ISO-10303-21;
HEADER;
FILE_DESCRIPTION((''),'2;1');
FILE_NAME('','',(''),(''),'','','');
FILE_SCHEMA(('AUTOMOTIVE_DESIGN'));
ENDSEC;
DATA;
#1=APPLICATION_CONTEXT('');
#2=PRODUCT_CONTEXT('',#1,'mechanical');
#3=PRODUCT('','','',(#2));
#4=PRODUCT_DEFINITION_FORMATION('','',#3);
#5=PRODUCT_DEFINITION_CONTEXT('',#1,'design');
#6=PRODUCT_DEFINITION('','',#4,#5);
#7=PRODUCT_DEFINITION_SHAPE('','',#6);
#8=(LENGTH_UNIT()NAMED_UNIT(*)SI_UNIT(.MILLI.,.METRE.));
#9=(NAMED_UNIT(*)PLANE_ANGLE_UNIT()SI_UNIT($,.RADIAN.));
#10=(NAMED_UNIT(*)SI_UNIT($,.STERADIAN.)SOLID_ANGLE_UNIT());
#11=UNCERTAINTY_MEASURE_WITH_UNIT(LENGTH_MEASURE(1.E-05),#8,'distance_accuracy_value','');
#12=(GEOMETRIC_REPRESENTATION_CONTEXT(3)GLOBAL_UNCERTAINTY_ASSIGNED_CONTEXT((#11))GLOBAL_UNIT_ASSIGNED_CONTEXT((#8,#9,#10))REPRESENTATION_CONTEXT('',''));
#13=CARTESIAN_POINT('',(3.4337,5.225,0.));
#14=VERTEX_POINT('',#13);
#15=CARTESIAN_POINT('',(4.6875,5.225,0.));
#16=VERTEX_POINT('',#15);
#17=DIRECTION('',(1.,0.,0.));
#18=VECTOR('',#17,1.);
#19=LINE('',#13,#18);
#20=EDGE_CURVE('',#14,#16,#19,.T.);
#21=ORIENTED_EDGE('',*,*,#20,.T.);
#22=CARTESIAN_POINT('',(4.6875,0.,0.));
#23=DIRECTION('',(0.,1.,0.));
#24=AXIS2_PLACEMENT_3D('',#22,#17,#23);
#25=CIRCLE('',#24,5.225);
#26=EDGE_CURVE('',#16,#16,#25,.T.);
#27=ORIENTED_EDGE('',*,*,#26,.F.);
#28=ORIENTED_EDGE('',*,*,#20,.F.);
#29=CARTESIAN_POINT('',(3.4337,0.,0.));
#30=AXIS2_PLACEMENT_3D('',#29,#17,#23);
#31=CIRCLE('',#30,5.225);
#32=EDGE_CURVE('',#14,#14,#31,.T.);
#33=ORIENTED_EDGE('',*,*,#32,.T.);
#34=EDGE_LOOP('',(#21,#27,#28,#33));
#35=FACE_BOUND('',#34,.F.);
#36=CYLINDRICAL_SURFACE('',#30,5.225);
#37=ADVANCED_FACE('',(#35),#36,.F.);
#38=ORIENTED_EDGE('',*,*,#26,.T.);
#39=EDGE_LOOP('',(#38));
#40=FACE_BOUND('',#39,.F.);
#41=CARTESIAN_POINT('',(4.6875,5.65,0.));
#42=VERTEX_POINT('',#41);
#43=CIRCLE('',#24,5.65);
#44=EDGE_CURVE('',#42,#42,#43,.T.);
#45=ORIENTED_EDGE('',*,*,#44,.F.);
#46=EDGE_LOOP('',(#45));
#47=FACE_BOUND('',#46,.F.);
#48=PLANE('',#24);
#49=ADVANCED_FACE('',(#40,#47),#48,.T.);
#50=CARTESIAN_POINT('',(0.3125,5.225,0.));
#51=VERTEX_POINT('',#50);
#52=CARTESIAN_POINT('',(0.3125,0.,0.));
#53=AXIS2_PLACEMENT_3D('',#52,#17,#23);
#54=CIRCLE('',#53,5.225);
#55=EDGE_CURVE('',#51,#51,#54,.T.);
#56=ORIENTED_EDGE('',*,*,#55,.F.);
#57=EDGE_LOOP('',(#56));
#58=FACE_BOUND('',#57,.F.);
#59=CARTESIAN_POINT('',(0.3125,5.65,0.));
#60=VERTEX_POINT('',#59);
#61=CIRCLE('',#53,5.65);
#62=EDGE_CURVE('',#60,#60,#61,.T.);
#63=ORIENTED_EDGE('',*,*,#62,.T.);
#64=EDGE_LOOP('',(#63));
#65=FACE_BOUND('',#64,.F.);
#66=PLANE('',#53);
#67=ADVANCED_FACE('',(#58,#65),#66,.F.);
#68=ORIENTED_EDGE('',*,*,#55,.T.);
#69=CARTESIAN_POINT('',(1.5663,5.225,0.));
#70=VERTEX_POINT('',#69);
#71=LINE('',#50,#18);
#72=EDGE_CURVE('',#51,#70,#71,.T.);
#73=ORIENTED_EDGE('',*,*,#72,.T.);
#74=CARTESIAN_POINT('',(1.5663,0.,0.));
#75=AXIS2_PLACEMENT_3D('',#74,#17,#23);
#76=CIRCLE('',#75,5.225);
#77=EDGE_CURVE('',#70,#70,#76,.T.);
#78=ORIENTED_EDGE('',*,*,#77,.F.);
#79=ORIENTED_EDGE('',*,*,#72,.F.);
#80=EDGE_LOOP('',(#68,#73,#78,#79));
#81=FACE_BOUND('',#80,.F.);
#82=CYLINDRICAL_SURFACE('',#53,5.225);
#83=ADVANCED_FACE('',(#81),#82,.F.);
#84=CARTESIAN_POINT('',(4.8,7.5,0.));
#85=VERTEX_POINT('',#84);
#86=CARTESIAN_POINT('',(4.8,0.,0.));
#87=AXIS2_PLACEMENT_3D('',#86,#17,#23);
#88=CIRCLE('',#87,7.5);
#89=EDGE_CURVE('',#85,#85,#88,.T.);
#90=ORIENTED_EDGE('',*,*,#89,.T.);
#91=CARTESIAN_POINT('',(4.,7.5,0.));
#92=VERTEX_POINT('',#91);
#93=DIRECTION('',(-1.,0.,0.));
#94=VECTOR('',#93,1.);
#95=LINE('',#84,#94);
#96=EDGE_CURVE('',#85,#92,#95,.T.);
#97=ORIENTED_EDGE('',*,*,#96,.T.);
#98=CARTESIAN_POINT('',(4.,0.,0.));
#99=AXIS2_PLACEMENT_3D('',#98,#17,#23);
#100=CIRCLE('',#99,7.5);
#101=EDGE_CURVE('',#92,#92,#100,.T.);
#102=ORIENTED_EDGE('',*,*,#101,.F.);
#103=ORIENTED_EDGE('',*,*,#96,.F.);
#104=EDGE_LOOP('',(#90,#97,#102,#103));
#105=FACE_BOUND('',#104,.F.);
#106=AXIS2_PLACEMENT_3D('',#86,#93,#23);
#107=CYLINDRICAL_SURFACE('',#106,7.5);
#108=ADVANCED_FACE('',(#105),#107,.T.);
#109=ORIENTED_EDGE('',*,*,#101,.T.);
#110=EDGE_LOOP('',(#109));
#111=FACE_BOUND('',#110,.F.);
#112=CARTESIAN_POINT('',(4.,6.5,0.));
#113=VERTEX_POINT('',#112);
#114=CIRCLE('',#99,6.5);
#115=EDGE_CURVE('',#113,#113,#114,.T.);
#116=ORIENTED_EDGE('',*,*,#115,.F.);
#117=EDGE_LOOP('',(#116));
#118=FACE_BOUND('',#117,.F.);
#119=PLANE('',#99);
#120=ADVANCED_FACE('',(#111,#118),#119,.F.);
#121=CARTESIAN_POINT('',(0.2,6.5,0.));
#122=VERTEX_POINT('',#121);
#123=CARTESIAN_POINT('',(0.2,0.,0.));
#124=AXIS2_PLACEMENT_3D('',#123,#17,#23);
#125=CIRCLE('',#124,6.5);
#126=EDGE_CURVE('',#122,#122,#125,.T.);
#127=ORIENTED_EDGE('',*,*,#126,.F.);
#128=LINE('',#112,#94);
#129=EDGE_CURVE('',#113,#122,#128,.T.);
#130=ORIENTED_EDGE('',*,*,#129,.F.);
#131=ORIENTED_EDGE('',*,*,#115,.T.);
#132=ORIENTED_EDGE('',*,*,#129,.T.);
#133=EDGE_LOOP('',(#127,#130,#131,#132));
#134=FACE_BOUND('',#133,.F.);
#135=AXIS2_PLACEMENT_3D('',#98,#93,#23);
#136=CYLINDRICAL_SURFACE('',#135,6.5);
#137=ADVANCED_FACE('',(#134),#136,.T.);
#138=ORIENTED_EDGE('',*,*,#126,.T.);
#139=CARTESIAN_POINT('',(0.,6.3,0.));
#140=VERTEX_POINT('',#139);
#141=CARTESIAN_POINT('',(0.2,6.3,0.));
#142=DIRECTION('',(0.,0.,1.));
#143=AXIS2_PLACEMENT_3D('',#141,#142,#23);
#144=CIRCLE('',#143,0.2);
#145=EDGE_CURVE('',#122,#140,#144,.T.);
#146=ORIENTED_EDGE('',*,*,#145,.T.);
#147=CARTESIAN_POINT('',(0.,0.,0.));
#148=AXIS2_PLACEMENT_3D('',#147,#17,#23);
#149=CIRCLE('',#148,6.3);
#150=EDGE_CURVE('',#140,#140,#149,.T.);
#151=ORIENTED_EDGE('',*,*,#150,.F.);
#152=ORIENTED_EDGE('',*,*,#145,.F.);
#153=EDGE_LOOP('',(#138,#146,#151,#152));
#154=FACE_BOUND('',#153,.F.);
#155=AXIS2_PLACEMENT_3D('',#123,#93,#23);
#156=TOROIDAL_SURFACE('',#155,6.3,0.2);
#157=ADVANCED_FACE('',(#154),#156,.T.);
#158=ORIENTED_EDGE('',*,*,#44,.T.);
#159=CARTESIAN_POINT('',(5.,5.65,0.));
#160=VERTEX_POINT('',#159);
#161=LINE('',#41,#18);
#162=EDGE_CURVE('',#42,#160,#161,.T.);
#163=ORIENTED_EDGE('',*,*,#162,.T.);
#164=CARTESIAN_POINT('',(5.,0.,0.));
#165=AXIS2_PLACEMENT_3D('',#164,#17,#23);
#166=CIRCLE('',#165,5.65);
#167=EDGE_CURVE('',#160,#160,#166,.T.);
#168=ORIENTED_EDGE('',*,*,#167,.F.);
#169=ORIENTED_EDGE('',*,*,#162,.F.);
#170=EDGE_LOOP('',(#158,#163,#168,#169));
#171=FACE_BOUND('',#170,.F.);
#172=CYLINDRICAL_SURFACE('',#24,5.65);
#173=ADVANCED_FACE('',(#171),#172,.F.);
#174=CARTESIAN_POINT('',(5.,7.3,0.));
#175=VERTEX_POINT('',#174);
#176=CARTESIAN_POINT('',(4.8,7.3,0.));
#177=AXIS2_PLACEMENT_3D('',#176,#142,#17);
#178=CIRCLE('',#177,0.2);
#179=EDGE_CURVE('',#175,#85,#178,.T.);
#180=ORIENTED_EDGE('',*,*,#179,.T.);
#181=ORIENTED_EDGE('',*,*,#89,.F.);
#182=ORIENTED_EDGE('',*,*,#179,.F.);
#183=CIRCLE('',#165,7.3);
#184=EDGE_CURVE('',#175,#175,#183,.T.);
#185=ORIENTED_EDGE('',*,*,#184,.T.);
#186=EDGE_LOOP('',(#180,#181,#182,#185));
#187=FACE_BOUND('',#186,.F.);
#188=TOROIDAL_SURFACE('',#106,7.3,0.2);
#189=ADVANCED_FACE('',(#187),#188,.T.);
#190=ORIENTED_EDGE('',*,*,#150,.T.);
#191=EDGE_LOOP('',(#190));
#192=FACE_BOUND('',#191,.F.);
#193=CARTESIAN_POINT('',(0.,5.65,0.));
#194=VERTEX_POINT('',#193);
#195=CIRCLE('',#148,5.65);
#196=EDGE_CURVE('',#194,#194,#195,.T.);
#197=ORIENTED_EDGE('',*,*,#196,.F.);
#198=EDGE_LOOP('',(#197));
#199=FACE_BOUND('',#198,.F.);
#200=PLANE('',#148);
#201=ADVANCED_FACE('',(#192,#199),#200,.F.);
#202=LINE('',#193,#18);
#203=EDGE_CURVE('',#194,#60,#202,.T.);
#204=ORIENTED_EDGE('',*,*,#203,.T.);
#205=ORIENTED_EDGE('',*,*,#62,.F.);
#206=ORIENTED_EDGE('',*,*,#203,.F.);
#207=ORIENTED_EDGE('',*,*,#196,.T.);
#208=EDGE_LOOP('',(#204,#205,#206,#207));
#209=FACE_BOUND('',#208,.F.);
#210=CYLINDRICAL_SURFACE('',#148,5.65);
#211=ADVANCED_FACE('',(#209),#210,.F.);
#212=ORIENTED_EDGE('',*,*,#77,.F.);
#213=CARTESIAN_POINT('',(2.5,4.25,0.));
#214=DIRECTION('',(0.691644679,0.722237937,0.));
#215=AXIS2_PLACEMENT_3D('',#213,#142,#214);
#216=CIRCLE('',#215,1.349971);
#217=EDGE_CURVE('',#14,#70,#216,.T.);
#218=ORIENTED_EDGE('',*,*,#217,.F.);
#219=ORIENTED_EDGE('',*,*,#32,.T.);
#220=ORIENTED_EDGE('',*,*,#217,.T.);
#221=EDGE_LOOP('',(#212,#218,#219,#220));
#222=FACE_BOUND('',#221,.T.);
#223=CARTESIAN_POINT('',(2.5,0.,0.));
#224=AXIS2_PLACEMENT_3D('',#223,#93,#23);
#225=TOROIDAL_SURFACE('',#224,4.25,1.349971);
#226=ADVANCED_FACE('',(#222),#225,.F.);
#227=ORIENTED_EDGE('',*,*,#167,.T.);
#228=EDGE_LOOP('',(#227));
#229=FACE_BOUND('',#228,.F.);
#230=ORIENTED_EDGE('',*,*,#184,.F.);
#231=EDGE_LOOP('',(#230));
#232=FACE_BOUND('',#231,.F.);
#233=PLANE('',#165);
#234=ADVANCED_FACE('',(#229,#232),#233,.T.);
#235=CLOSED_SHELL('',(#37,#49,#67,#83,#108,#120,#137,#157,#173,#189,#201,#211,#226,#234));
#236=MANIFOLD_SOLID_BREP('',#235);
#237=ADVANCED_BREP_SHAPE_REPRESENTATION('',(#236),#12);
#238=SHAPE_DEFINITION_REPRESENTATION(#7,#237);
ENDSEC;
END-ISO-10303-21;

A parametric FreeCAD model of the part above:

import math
import FreeCAD as App
import Part
import Sketcher

V = App.Vector
Q = App.Units.Quantity

doc = App.newDocument("Part")
body = doc.addObject("PartDesign::Body", "Body")

sketch1 = body.newObject("Sketcher::SketchObject", "Sketch")
sketch1.AttachmentSupport = (doc.getObject("XY_Plane"), [""])
sketch1.MapMode = "FlatFace"
sketch1.addGeometry(Part.LineSegment(V(0, 6.3, 0), V(0, 5.65, 0)), False)
sketch1.addGeometry(Part.LineSegment(V(0, 5.65, 0), V(0.31, 5.65, 0)), False)
sketch1.addGeometry(Part.LineSegment(V(0.31, 5.65, 0), V(0.31, 5.22, 0)), False)
sketch1.addGeometry(Part.LineSegment(V(0.31, 5.22, 0), V(1.57, 5.22, 0)), False)
sketch1.addGeometry(Part.ArcOfCircle(Part.Circle(V(2.5, 4.25, 0), V(0, 0, 1), 1.35), math.radians(46), math.radians(134)), False)
sketch1.addGeometry(Part.LineSegment(V(3.43, 5.22, 0), V(4.69, 5.22, 0)), False)
sketch1.addGeometry(Part.LineSegment(V(4.69, 5.22, 0), V(4.69, 5.65, 0)), False)
sketch1.addGeometry(Part.LineSegment(V(4.69, 5.65, 0), V(5, 5.65, 0)), False)
sketch1.addGeometry(Part.LineSegment(V(5, 5.65, 0), V(5, 7.3, 0)), False)
sketch1.addGeometry(Part.ArcOfCircle(Part.Circle(V(4.8, 7.3, 0), V(0, 0, 1), 0.2), math.radians(0), math.radians(90)), False)
sketch1.addGeometry(Part.LineSegment(V(4.8, 7.5, 0), V(4, 7.5, 0)), False)
sketch1.addGeometry(Part.LineSegment(V(4, 7.5, 0), V(4, 6.5, 0)), False)
sketch1.addGeometry(Part.LineSegment(V(4, 6.5, 0), V(0.2, 6.5, 0)), False)
sketch1.addGeometry(Part.ArcOfCircle(Part.Circle(V(0.2, 6.3, 0), V(0, 0, 1), 0.2), math.radians(90), math.radians(180)), False)
sketch1.addConstraint(Sketcher.Constraint("Coincident", 0, 2, 1, 1))
sketch1.addConstraint(Sketcher.Constraint("Coincident", 1, 2, 2, 1))
sketch1.addConstraint(Sketcher.Constraint("Coincident", 2, 2, 3, 1))
sketch1.addConstraint(Sketcher.Constraint("Coincident", 3, 2, 4, 2))
sketch1.addConstraint(Sketcher.Constraint("Coincident", 4, 1, 5, 1))
sketch1.addConstraint(Sketcher.Constraint("Coincident", 5, 2, 6, 1))
sketch1.addConstraint(Sketcher.Constraint("Coincident", 6, 2, 7, 1))
sketch1.addConstraint(Sketcher.Constraint("Coincident", 7, 2, 8, 1))
sketch1.addConstraint(Sketcher.Constraint("Tangent", 8, 2, 9, 1))
sketch1.addConstraint(Sketcher.Constraint("Tangent", 9, 2, 10, 1))
sketch1.addConstraint(Sketcher.Constraint("Coincident", 10, 2, 11, 1))
sketch1.addConstraint(Sketcher.Constraint("Coincident", 11, 2, 12, 1))
sketch1.addConstraint(Sketcher.Constraint("Tangent", 12, 2, 13, 1))
sketch1.addConstraint(Sketcher.Constraint("Tangent", 13, 2, 0, 1))
sketch1.addConstraint(Sketcher.Constraint("Vertical", 0))
sketch1.addConstraint(Sketcher.Constraint("Horizontal", 1))
sketch1.addConstraint(Sketcher.Constraint("Vertical", 2))
sketch1.addConstraint(Sketcher.Constraint("Horizontal", 3))
sketch1.addConstraint(Sketcher.Constraint("Horizontal", 5))
sketch1.addConstraint(Sketcher.Constraint("Vertical", 6))
sketch1.addConstraint(Sketcher.Constraint("Horizontal", 7))
sketch1.addConstraint(Sketcher.Constraint("Vertical", 8))
sketch1.addConstraint(Sketcher.Constraint("Horizontal", 10))
sketch1.addConstraint(Sketcher.Constraint("Vertical", 11))
sketch1.addConstraint(Sketcher.Constraint("Horizontal", 12))
sketch1.addConstraint(Sketcher.Constraint("Equal", 9, 13))
sketch1.addConstraint(Sketcher.Constraint("PointOnObject", 0, 2, -2))
sketch1.addConstraint(Sketcher.Constraint("Horizontal", 3, 2, 4, 1))
sketch1.addConstraint(Sketcher.Constraint("Horizontal", 1, 2, 6, 2))
sketch1.addConstraint(Sketcher.Constraint("Equal", 3, 5))
sketch1.addConstraint(Sketcher.Constraint("Equal", 1, 7))
sketch1.addConstraint(Sketcher.Constraint("Radius", 9, Q("0.2 mm")))
sketch1.addConstraint(Sketcher.Constraint("DistanceY", 11, 2, 11, 1, Q("1 mm")))
sketch1.addConstraint(Sketcher.Constraint("Radius", 4, Q("1.35 mm")))
sketch1.addConstraint(Sketcher.Constraint("DistanceX", 10, 2, 10, 1, Q("0.8 mm")))
sketch1.addConstraint(Sketcher.Constraint("DistanceX", 12, 2, 12, 1, Q("3.8 mm")))
sketch1.addConstraint(Sketcher.Constraint("DistanceY", 0, 2, 0, 1, Q("0.65 mm")))
sketch1.addConstraint(Sketcher.Constraint("DistanceY", -1, 1, 9, 3, Q("7.3 mm")))
sketch1.addConstraint(Sketcher.Constraint("DistanceY", 4, 3, 0, 2, Q("1.4 mm")))
sketch1.addConstraint(Sketcher.Constraint("DistanceY", 2, 2, 2, 1, Q("0.425 mm")))
sketch1.addConstraint(Sketcher.Constraint("DistanceX", 1, 1, 1, 2, Q("0.3125 mm")))
revolution = body.newObject("PartDesign::Revolution", "Revolution")
revolution.Profile = sketch1
revolution.ReferenceAxis = (sketch1, ["H_Axis"])
revolution.Angle = 360

doc.recompute()
